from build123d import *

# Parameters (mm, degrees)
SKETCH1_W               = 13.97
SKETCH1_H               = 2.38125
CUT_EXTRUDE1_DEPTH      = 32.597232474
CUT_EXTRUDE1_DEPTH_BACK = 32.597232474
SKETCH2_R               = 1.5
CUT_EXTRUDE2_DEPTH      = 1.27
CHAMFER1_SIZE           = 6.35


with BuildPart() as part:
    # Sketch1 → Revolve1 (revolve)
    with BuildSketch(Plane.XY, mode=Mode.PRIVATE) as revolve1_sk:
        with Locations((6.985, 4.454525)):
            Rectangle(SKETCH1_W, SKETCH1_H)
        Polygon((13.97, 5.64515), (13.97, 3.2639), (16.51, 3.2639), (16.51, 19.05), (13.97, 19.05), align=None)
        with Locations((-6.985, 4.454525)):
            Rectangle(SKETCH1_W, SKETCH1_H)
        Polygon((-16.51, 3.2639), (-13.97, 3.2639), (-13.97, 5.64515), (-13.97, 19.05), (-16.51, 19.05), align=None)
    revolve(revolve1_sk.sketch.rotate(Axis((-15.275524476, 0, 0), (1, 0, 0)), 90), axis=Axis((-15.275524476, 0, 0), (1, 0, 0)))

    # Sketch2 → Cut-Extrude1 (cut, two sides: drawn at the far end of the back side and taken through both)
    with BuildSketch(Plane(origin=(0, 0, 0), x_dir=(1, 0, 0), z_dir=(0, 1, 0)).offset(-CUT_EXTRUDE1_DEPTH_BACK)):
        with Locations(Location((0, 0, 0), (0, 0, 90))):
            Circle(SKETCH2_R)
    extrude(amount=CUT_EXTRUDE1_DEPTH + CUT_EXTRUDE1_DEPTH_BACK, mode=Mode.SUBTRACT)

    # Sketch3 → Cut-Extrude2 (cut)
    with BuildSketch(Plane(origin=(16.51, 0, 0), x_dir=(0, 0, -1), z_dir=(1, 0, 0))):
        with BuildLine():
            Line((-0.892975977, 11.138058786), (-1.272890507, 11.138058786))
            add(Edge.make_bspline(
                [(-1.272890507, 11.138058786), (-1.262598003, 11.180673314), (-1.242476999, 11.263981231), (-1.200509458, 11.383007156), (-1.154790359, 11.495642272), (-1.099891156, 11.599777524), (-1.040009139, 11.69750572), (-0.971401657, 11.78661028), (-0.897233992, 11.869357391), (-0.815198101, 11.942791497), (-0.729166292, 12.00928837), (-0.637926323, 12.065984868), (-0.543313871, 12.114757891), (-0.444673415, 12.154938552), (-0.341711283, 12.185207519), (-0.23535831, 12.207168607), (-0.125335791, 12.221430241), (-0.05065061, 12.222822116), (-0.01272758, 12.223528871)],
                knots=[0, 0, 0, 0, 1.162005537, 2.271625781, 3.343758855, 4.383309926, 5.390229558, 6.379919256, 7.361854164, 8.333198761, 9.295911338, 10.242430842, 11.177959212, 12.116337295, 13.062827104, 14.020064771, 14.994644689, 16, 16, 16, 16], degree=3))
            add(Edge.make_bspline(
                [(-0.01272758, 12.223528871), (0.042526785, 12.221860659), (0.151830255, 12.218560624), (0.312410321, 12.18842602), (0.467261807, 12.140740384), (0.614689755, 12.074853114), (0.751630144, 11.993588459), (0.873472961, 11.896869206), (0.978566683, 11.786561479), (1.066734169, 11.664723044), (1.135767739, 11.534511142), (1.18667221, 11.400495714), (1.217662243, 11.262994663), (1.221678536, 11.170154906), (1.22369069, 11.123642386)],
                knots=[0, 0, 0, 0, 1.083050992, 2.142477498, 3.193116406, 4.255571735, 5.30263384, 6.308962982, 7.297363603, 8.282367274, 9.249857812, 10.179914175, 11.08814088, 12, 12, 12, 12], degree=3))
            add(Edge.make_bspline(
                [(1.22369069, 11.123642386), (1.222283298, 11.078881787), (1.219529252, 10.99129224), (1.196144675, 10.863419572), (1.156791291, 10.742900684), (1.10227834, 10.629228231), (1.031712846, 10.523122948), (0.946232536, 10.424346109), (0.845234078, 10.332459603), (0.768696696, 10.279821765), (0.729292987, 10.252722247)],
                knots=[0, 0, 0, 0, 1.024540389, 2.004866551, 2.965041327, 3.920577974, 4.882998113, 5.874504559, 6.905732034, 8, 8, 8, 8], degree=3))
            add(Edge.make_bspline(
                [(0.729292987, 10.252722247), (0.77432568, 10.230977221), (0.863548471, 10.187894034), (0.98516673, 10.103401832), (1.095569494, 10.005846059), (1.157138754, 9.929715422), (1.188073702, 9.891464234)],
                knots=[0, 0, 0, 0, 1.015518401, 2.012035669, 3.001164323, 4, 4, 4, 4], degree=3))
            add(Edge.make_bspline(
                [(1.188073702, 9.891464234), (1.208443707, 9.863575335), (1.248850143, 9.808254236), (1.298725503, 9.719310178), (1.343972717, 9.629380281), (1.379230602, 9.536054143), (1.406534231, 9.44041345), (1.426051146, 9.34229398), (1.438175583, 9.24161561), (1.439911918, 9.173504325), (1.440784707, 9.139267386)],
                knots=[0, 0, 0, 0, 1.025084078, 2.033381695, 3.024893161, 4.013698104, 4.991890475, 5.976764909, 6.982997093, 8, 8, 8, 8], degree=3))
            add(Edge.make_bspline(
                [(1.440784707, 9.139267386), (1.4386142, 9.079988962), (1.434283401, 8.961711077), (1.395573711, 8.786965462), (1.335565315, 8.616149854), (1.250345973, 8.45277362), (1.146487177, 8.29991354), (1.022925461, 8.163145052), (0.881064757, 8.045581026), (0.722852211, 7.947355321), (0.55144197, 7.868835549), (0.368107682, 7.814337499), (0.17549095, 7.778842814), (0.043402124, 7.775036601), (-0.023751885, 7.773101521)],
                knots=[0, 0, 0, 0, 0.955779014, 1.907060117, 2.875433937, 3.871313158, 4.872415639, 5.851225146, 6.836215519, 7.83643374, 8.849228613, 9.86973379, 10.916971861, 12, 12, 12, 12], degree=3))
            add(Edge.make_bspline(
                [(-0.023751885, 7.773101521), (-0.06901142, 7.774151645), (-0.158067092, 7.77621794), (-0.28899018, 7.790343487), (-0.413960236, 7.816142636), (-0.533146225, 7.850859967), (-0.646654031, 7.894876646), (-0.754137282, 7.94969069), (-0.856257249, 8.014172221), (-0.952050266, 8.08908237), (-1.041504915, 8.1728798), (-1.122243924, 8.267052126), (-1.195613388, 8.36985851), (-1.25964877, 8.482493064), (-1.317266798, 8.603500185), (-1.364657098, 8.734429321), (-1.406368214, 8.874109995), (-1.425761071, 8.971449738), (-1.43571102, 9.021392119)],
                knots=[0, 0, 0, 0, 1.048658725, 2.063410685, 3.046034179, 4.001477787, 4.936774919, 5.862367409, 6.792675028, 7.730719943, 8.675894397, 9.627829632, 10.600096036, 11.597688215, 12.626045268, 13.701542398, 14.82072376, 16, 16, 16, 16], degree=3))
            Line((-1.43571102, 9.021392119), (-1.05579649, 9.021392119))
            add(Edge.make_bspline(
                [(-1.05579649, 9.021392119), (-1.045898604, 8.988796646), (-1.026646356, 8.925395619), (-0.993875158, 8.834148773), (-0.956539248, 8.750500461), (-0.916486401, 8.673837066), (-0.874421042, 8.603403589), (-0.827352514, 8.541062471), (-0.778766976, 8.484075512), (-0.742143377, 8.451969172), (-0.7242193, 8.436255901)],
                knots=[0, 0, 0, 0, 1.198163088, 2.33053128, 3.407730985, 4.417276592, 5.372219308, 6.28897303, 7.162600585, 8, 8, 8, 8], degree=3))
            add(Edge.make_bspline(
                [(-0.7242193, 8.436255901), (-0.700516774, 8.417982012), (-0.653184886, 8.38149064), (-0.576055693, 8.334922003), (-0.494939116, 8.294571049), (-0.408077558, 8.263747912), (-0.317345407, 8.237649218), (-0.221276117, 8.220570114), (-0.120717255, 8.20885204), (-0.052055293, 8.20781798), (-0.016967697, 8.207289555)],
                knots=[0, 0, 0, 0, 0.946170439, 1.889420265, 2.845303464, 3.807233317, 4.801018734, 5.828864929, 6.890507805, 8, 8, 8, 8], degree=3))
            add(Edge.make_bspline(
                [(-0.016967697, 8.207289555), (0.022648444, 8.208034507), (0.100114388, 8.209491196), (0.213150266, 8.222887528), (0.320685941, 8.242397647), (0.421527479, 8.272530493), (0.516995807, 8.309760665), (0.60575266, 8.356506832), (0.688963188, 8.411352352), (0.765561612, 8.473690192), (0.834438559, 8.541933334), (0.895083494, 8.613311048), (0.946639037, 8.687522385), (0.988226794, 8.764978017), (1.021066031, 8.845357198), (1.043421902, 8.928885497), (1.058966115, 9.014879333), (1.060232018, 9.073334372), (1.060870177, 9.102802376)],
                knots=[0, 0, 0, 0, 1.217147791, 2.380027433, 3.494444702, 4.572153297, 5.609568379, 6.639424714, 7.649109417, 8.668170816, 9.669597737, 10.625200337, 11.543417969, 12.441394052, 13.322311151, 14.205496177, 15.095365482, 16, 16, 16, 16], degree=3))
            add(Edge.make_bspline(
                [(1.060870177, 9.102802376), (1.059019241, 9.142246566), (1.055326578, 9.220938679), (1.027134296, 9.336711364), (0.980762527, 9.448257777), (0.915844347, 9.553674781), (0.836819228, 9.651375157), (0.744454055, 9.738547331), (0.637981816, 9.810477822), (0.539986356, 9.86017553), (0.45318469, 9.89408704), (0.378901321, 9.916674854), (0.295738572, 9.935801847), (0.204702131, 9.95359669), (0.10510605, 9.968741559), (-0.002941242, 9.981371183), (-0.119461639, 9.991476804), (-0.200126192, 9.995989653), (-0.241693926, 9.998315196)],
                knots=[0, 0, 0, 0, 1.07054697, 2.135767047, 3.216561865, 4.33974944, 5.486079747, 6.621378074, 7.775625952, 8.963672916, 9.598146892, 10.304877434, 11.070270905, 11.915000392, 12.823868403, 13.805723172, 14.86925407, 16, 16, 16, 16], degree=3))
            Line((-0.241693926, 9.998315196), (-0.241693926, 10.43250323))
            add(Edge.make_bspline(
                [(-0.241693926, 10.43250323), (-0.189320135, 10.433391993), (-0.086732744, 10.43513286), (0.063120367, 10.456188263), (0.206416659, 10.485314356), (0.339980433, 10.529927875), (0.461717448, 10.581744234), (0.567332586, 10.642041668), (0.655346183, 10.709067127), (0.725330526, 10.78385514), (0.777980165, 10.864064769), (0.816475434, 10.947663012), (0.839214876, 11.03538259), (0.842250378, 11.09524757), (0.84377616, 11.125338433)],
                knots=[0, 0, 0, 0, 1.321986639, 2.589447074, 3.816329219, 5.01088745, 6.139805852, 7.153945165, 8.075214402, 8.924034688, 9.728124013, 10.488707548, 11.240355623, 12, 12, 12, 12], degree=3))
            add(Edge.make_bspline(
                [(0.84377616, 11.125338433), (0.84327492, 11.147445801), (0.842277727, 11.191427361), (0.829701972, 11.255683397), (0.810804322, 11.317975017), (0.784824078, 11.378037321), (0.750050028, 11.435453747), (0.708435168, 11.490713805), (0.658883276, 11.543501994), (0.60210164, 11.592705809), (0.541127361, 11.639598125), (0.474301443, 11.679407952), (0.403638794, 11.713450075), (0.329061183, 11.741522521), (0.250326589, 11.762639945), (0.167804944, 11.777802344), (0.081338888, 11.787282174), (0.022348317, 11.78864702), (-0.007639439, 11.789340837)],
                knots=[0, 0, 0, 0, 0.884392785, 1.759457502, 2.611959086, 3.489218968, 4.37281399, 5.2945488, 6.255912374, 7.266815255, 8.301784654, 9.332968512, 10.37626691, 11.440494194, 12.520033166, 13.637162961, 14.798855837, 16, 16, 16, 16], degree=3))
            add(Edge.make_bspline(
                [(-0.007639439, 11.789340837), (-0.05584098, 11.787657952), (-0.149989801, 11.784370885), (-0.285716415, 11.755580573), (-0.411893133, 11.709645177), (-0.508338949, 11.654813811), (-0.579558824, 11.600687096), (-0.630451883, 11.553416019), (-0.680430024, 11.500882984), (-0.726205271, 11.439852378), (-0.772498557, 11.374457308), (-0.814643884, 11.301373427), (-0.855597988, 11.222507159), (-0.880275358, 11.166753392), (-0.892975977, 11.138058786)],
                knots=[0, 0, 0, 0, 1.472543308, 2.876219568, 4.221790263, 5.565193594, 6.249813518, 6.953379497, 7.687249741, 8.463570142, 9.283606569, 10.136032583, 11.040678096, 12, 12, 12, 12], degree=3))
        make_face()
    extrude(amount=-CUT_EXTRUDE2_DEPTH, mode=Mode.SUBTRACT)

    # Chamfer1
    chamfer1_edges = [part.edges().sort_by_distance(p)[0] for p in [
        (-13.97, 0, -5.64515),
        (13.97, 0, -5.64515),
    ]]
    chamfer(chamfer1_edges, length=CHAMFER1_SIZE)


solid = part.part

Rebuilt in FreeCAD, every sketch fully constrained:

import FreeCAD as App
import Part
import Sketcher
Q = App.Units.Quantity


def edges_at(feature, points):
    """Names of the edges that pass closest to the given points."""
    edges = feature.Shape.Edges
    near = lambda p: min(range(len(edges)), key=lambda i: edges[i].distToShape(Part.Vertex(*p))[0])
    return sorted({f"Edge{near(p) + 1}" for p in points})


def add_polygon(sketch, points):
    """Adds a closed chain of lines whose ends are joined by coincident constraints."""
    first, n = sketch.GeometryCount, len(points)
    for a, b in zip(points, points[1:] + points[:1]):
        sketch.addGeometry(Part.LineSegment(App.Vector(*a, 0), App.Vector(*b, 0)), False)
    for i in range(n):
        sketch.addConstraint(Sketcher.Constraint("Coincident", first + i, 2, first + (i + 1) % n, 1))

doc = App.newDocument("Part")
body = doc.addObject("PartDesign::Body", "Body")

# Sketch on XY plane
sketch1 = body.newObject("Sketcher::SketchObject", "Sketch")
sketch1.AttachmentSupport = (doc.getObject("XY_Plane"), [""])
sketch1.MapMode = "FlatFace"
add_polygon(sketch1, [(16.5, 3.3), (16.5, 19.1), (14, 19.1), (14, 5.6), (-14, 5.6), (-14, 19.1), (-16.5, 19.1), (-16.5, 3.3)])  # lines 0-7
sketch1.addConstraint([
    Sketcher.Constraint("Vertical", 0),
    Sketcher.Constraint("Horizontal", 1),
    Sketcher.Constraint("Vertical", 2),
    Sketcher.Constraint("Horizontal", 3),
    Sketcher.Constraint("Vertical", 4),
    Sketcher.Constraint("Horizontal", 5),
    Sketcher.Constraint("Vertical", 6),
    Sketcher.Constraint("Horizontal", 7),
    Sketcher.Constraint("Symmetric", 1, 2, 4, 2, -2),
    Sketcher.Constraint("Equal", 1, 5),
    Sketcher.Constraint("DistanceX", 1, 2, 1, 1, Q("0.1 in")),
    Sketcher.Constraint("DistanceX", 3, 2, 3, 1, Q("1.1 in")),
    Sketcher.Constraint("DistanceY", -1, 1, 0, 2, Q("0.75 in")),
    Sketcher.Constraint("DistanceY", 0, 1, 0, 2, Q("0.6215 in")),
    Sketcher.Constraint("DistanceY", 6, 2, 3, 2, Q("0.09375 in")),
])
revolution = body.newObject("PartDesign::Revolution", "Revolution")
revolution.Profile = sketch1
revolution.ReferenceAxis = (sketch1, ["H_Axis"])
revolution.Angle = 360

# Sketch on XZ plane
sketch2 = body.newObject("Sketcher::SketchObject", "Sketch001")
sketch2.AttachmentSupport = (doc.getObject("XZ_Plane"), [""])
sketch2.MapMode = "FlatFace"
sketch2.addGeometry(Part.Circle(App.Vector(0, 0, 0), App.Vector(0, 0, 1), 1.5), False)
sketch2.addConstraint([
    Sketcher.Constraint("Coincident", 0, 3, -1, 1),
    Sketcher.Constraint("Diameter", 0, 3.0),
])
pocket1 = body.newObject("PartDesign::Pocket", "Pocket")
pocket1.Profile = sketch2
pocket1.Type = "ThroughAll"
pocket1.Midplane = True

# Sketch on YZ plane
sketch3 = body.newObject("Sketcher::SketchObject", "Sketch002")
sketch3.AttachmentSupport = (doc.getObject("YZ_Plane"), [""])
sketch3.MapMode = "FlatFace"
sketch3.AttachmentOffset = App.Placement(App.Vector(0, 0, 0.65 * 25.4), App.Rotation())
sketch3.addGeometry([
    Part.LineSegment(App.Vector(11.138059, 1.272891, 0), App.Vector(11.138059, 0.892976, 0)),  # 0
    Part.BSplineCurve([App.Vector(11.789341, 0.007639, 0), App.Vector(11.787658, 0.055841, 0), App.Vector(11.784371, 0.14999, 0), App.Vector(11.755581, 0.285716, 0), App.Vector(11.709645, 0.411893, 0), App.Vector(11.654814, 0.508339, 0), App.Vector(11.600687, 0.579559, 0), App.Vector(11.553416, 0.630452, 0), App.Vector(11.500883, 0.68043, 0), App.Vector(11.439852, 0.726205, 0), App.Vector(11.374457, 0.772499, 0), App.Vector(11.301373, 0.814644, 0), App.Vector(11.222507, 0.855598, 0), App.Vector(11.166753, 0.880275, 0), App.Vector(11.138059, 0.892976, 0)], [4, 1, 1, 1, 1, 1, 1, 1, 1, 1, 1, 1, 4], [0, 1.472543308, 2.876219568, 4.221790263, 5.565193594, 6.249813518, 6.953379497, 7.687249741, 8.463570142, 9.283606569, 10.136032583, 11.040678096, 12], False, 3, [1, 1, 1, 1, 1, 1, 1, 1, 1, 1, 1, 1, 1, 1, 1], False),  # 1
    Part.BSplineCurve([App.Vector(11.125338, -0.843776, 0), App.Vector(11.147446, -0.843275, 0), App.Vector(11.191427, -0.842278, 0), App.Vector(11.255683, -0.829702, 0), App.Vector(11.317975, -0.810804, 0), App.Vector(11.378037, -0.784824, 0), App.Vector(11.435454, -0.75005, 0), App.Vector(11.490714, -0.708435, 0), App.Vector(11.543502, -0.658883, 0), App.Vector(11.592706, -0.602102, 0), App.Vector(11.639598, -0.541127, 0), App.Vector(11.679408, -0.474301, 0), App.Vector(11.71345, -0.403639, 0), App.Vector(11.741523, -0.329061, 0), App.Vector(11.76264, -0.250327, 0), App.Vector(11.777802, -0.167805, 0), App.Vector(11.787282, -0.081339, 0), App.Vector(11.788647, -0.022348, 0), App.Vector(11.789341, 0.007639, 0)], [4, 1, 1, 1, 1, 1, 1, 1, 1, 1, 1, 1, 1, 1, 1, 1, 4], [0, 0.884392785, 1.759457502, 2.611959086, 3.489218968, 4.37281399, 5.2945488, 6.255912374, 7.266815255, 8.301784654, 9.332968512, 10.37626691, 11.440494194, 12.520033166, 13.637162961, 14.798855837, 16], False, 3, [1, 1, 1, 1, 1, 1, 1, 1, 1, 1, 1, 1, 1, 1, 1, 1, 1, 1, 1], False),  # 2
    Part.BSplineCurve([App.Vector(10.432503, 0.241694, 0), App.Vector(10.433392, 0.18932, 0), App.Vector(10.435133, 0.086733, 0), App.Vector(10.456188, -0.06312, 0), App.Vector(10.485314, -0.206417, 0), App.Vector(10.529928, -0.33998, 0), App.Vector(10.581744, -0.461717, 0), App.Vector(10.642042, -0.567333, 0), App.Vector(10.709067, -0.655346, 0), App.Vector(10.783855, -0.725331, 0), App.Vector(10.864065, -0.77798, 0), App.Vector(10.947663, -0.816475, 0), App.Vector(11.035383, -0.839215, 0), App.Vector(11.095248, -0.84225, 0), App.Vector(11.125338, -0.843776, 0)], [4, 1, 1, 1, 1, 1, 1, 1, 1, 1, 1, 1, 4], [0, 1.321986639, 2.589447074, 3.816329219, 5.01088745, 6.139805852, 7.153945165, 8.075214402, 8.924034688, 9.728124013, 10.488707548, 11.240355623, 12], False, 3, [1, 1, 1, 1, 1, 1, 1, 1, 1, 1, 1, 1, 1, 1, 1], False),  # 3
    Part.LineSegment(App.Vector(10.432503, 0.241694, 0), App.Vector(9.998315, 0.241694, 0)),  # 4
    Part.BSplineCurve([App.Vector(9.102802, -1.06087, 0), App.Vector(9.142247, -1.059019, 0), App.Vector(9.220939, -1.055327, 0), App.Vector(9.336711, -1.027134, 0), App.Vector(9.448258, -0.980763, 0), App.Vector(9.553675, -0.915844, 0), App.Vector(9.651375, -0.836819, 0), App.Vector(9.738547, -0.744454, 0), App.Vector(9.810478, -0.637982, 0), App.Vector(9.860176, -0.539986, 0), App.Vector(9.894087, -0.453185, 0), App.Vector(9.916675, -0.378901, 0), App.Vector(9.935802, -0.295739, 0), App.Vector(9.953597, -0.204702, 0), App.Vector(9.968742, -0.105106, 0), App.Vector(9.981371, 0.002941, 0), App.Vector(9.991477, 0.119462, 0), App.Vector(9.99599, 0.200126, 0), App.Vector(9.998315, 0.241694, 0)], [4, 1, 1, 1, 1, 1, 1, 1, 1, 1, 1, 1, 1, 1, 1, 1, 4], [0, 1.07054697, 2.135767047, 3.216561865, 4.33974944, 5.486079747, 6.621378074, 7.775625952, 8.963672916, 9.598146892, 10.304877434, 11.070270905, 11.915000392, 12.823868403, 13.805723172, 14.86925407, 16], False, 3, [1, 1, 1, 1, 1, 1, 1, 1, 1, 1, 1, 1, 1, 1, 1, 1, 1, 1, 1], False),  # 5
    Part.BSplineCurve([App.Vector(8.20729, 0.016968, 0), App.Vector(8.208035, -0.022648, 0), App.Vector(8.209491, -0.100114, 0), App.Vector(8.222888, -0.21315, 0), App.Vector(8.242398, -0.320686, 0), App.Vector(8.27253, -0.421527, 0), App.Vector(8.309761, -0.516996, 0), App.Vector(8.356507, -0.605753, 0), App.Vector(8.411352, -0.688963, 0), App.Vector(8.47369, -0.765562, 0), App.Vector(8.541933, -0.834439, 0), App.Vector(8.613311, -0.895083, 0), App.Vector(8.687522, -0.946639, 0), App.Vector(8.764978, -0.988227, 0), App.Vector(8.845357, -1.021066, 0), App.Vector(8.928885, -1.043422, 0), App.Vector(9.014879, -1.058966, 0), App.Vector(9.073334, -1.060232, 0), App.Vector(9.102802, -1.06087, 0)], [4, 1, 1, 1, 1, 1, 1, 1, 1, 1, 1, 1, 1, 1, 1, 1, 4], [0, 1.217147791, 2.380027433, 3.494444702, 4.572153297, 5.609568379, 6.639424714, 7.649109417, 8.668170816, 9.669597737, 10.625200337, 11.543417969, 12.441394052, 13.322311151, 14.205496177, 15.095365482, 16], False, 3, [1, 1, 1, 1, 1, 1, 1, 1, 1, 1, 1, 1, 1, 1, 1, 1, 1, 1, 1], False),  # 6
    Part.BSplineCurve([App.Vector(8.436256, 0.724219, 0), App.Vector(8.417982, 0.700517, 0), App.Vector(8.381491, 0.653185, 0), App.Vector(8.334922, 0.576056, 0), App.Vector(8.294571, 0.494939, 0), App.Vector(8.263748, 0.408078, 0), App.Vector(8.237649, 0.317345, 0), App.Vector(8.22057, 0.221276, 0), App.Vector(8.208852, 0.120717, 0), App.Vector(8.207818, 0.052055, 0), App.Vector(8.20729, 0.016968, 0)], [4, 1, 1, 1, 1, 1, 1, 1, 4], [0, 0.946170439, 1.889420265, 2.845303464, 3.807233317, 4.801018734, 5.828864929, 6.890507805, 8], False, 3, [1, 1, 1, 1, 1, 1, 1, 1, 1, 1, 1], False),  # 7
    Part.BSplineCurve([App.Vector(9.021392, 1.055796, 0), App.Vector(8.988797, 1.045899, 0), App.Vector(8.925396, 1.026646, 0), App.Vector(8.834149, 0.993875, 0), App.Vector(8.7505, 0.956539, 0), App.Vector(8.673837, 0.916486, 0), App.Vector(8.603404, 0.874421, 0), App.Vector(8.541062, 0.827353, 0), App.Vector(8.484076, 0.778767, 0), App.Vector(8.451969, 0.742143, 0), App.Vector(8.436256, 0.724219, 0)], [4, 1, 1, 1, 1, 1, 1, 1, 4], [0, 1.198163088, 2.33053128, 3.407730985, 4.417276592, 5.372219308, 6.28897303, 7.162600585, 8], False, 3, [1, 1, 1, 1, 1, 1, 1, 1, 1, 1, 1], False),  # 8
    Part.LineSegment(App.Vector(9.021392, 1.055796, 0), App.Vector(9.021392, 1.435711, 0)),  # 9
    Part.BSplineCurve([App.Vector(7.773102, 0.023752, 0), App.Vector(7.774152, 0.069011, 0), App.Vector(7.776218, 0.158067, 0), App.Vector(7.790343, 0.28899, 0), App.Vector(7.816143, 0.41396, 0), App.Vector(7.85086, 0.533146, 0), App.Vector(7.894877, 0.646654, 0), App.Vector(7.949691, 0.754137, 0), App.Vector(8.014172, 0.856257, 0), App.Vector(8.089082, 0.95205, 0), App.Vector(8.17288, 1.041505, 0), App.Vector(8.267052, 1.122244, 0), App.Vector(8.369859, 1.195613, 0), App.Vector(8.482493, 1.259649, 0), App.Vector(8.6035, 1.317267, 0), App.Vector(8.734429, 1.364657, 0), App.Vector(8.87411, 1.406368, 0), App.Vector(8.97145, 1.425761, 0), App.Vector(9.021392, 1.435711, 0)], [4, 1, 1, 1, 1, 1, 1, 1, 1, 1, 1, 1, 1, 1, 1, 1, 4], [0, 1.048658725, 2.063410685, 3.046034179, 4.001477787, 4.936774919, 5.862367409, 6.792675028, 7.730719943, 8.675894397, 9.627829632, 10.600096036, 11.597688215, 12.626045268, 13.701542398, 14.82072376, 16], False, 3, [1, 1, 1, 1, 1, 1, 1, 1, 1, 1, 1, 1, 1, 1, 1, 1, 1, 1, 1], False),  # 10
    Part.BSplineCurve([App.Vector(9.139267, -1.440785, 0), App.Vector(9.079989, -1.438614, 0), App.Vector(8.961711, -1.434283, 0), App.Vector(8.786965, -1.395574, 0), App.Vector(8.61615, -1.335565, 0), App.Vector(8.452774, -1.250346, 0), App.Vector(8.299914, -1.146487, 0), App.Vector(8.163145, -1.022925, 0), App.Vector(8.045581, -0.881065, 0), App.Vector(7.947355, -0.722852, 0), App.Vector(7.868836, -0.551442, 0), App.Vector(7.814337, -0.368108, 0), App.Vector(7.778843, -0.175491, 0), App.Vector(7.775037, -0.043402, 0), App.Vector(7.773102, 0.023752, 0)], [4, 1, 1, 1, 1, 1, 1, 1, 1, 1, 1, 1, 4], [0, 0.955779014, 1.907060117, 2.875433937, 3.871313158, 4.872415639, 5.851225146, 6.836215519, 7.83643374, 8.849228613, 9.86973379, 10.916971861, 12], False, 3, [1, 1, 1, 1, 1, 1, 1, 1, 1, 1, 1, 1, 1, 1, 1], False),  # 11
    Part.BSplineCurve([App.Vector(9.891464, -1.188074, 0), App.Vector(9.863575, -1.208444, 0), App.Vector(9.808254, -1.24885, 0), App.Vector(9.71931, -1.298726, 0), App.Vector(9.62938, -1.343973, 0), App.Vector(9.536054, -1.379231, 0), App.Vector(9.440413, -1.406534, 0), App.Vector(9.342294, -1.426051, 0), App.Vector(9.241616, -1.438176, 0), App.Vector(9.173504, -1.439912, 0), App.Vector(9.139267, -1.440785, 0)], [4, 1, 1, 1, 1, 1, 1, 1, 4], [0, 1.025084078, 2.033381695, 3.024893161, 4.013698104, 4.991890475, 5.976764909, 6.982997093, 8], False, 3, [1, 1, 1, 1, 1, 1, 1, 1, 1, 1, 1], False),  # 12
    Part.BSplineCurve([App.Vector(10.252722, -0.729293, 0), App.Vector(10.230977, -0.774326, 0), App.Vector(10.187894, -0.863548, 0), App.Vector(10.103402, -0.985167, 0), App.Vector(10.005846, -1.095569, 0), App.Vector(9.929715, -1.157139, 0), App.Vector(9.891464, -1.188074, 0)], [4, 1, 1, 1, 4], [0, 1.015518401, 2.012035669, 3.001164323, 4], False, 3, [1, 1, 1, 1, 1, 1, 1], False),  # 13
    Part.BSplineCurve([App.Vector(11.123642, -1.223691, 0), App.Vector(11.078882, -1.222283, 0), App.Vector(10.991292, -1.219529, 0), App.Vector(10.86342, -1.196145, 0), App.Vector(10.742901, -1.156791, 0), App.Vector(10.629228, -1.102278, 0), App.Vector(10.523123, -1.031713, 0), App.Vector(10.424346, -0.946233, 0), App.Vector(10.33246, -0.845234, 0), App.Vector(10.279822, -0.768697, 0), App.Vector(10.252722, -0.729293, 0)], [4, 1, 1, 1, 1, 1, 1, 1, 4], [0, 1.024540389, 2.004866551, 2.965041327, 3.920577974, 4.882998113, 5.874504559, 6.905732034, 8], False, 3, [1, 1, 1, 1, 1, 1, 1, 1, 1, 1, 1], False),  # 14
    Part.BSplineCurve([App.Vector(12.223529, 0.012728, 0), App.Vector(12.221861, -0.042527, 0), App.Vector(12.218561, -0.15183, 0), App.Vector(12.188426, -0.31241, 0), App.Vector(12.14074, -0.467262, 0), App.Vector(12.074853, -0.61469, 0), App.Vector(11.993588, -0.75163, 0), App.Vector(11.896869, -0.873473, 0), App.Vector(11.786561, -0.978567, 0), App.Vector(11.664723, -1.066734, 0), App.Vector(11.534511, -1.135768, 0), App.Vector(11.400496, -1.186672, 0), App.Vector(11.262995, -1.217662, 0), App.Vector(11.170155, -1.221679, 0), App.Vector(11.123642, -1.223691, 0)], [4, 1, 1, 1, 1, 1, 1, 1, 1, 1, 1, 1, 4], [0, 1.083050992, 2.142477498, 3.193116406, 4.255571735, 5.30263384, 6.308962982, 7.297363603, 8.282367274, 9.249857812, 10.179914175, 11.08814088, 12], False, 3, [1, 1, 1, 1, 1, 1, 1, 1, 1, 1, 1, 1, 1, 1, 1], False),  # 15
    Part.BSplineCurve([App.Vector(11.138059, 1.272891, 0), App.Vector(11.180673, 1.262598, 0), App.Vector(11.263981, 1.242477, 0), App.Vector(11.383007, 1.200509, 0), App.Vector(11.495642, 1.15479, 0), App.Vector(11.599778, 1.099891, 0), App.Vector(11.697506, 1.040009, 0), App.Vector(11.78661, 0.971402, 0), App.Vector(11.869357, 0.897234, 0), App.Vector(11.942791, 0.815198, 0), App.Vector(12.009288, 0.729166, 0), App.Vector(12.065985, 0.637926, 0), App.Vector(12.114758, 0.543314, 0), App.Vector(12.154939, 0.444673, 0), App.Vector(12.185208, 0.341711, 0), App.Vector(12.207169, 0.235358, 0), App.Vector(12.22143, 0.125336, 0), App.Vector(12.222822, 0.050651, 0), App.Vector(12.223529, 0.012728, 0)], [4, 1, 1, 1, 1, 1, 1, 1, 1, 1, 1, 1, 1, 1, 1, 1, 4], [0, 1.162005537, 2.271625781, 3.343758855, 4.383309926, 5.390229558, 6.379919256, 7.361854164, 8.333198761, 9.295911338, 10.242430842, 11.177959212, 12.116337295, 13.062827104, 14.020064771, 14.994644689, 16], False, 3, [1, 1, 1, 1, 1, 1, 1, 1, 1, 1, 1, 1, 1, 1, 1, 1, 1, 1, 1], False),  # 16
], False)
sketch3.addConstraint([
    Sketcher.Constraint("Block", 1),
    Sketcher.Constraint("Block", 2),
    Sketcher.Constraint("Block", 3),
    Sketcher.Constraint("Block", 5),
    Sketcher.Constraint("Block", 6),
    Sketcher.Constraint("Block", 7),
    Sketcher.Constraint("Block", 8),
    Sketcher.Constraint("Block", 10),
    Sketcher.Constraint("Block", 11),
    Sketcher.Constraint("Block", 12),
    Sketcher.Constraint("Block", 13),
    Sketcher.Constraint("Block", 14),
    Sketcher.Constraint("Block", 15),
    Sketcher.Constraint("Block", 16),
    Sketcher.Constraint("Coincident", 0, 2, 1, 2),
    Sketcher.Constraint("Coincident", 3, 1, 4, 1),
    Sketcher.Constraint("Coincident", 4, 2, 5, 2),
    Sketcher.Constraint("Coincident", 8, 1, 9, 1),
    Sketcher.Constraint("Coincident", 9, 2, 10, 2),
    Sketcher.Constraint("Coincident", 16, 1, 0, 1),
])
pocket2 = body.newObject("PartDesign::Pocket", "Pocket001")
pocket2.Profile = sketch3
pocket2.Length = Q("0.05 in")
doc.recompute()

chamfer = body.newObject("PartDesign::Chamfer", "Chamfer")
chamfer.Base = (pocket2, edges_at(pocket2, [(-13.97, 0, -5.645), (13.97, 0, -5.645)]))
chamfer.Size = Q("0.25 in")

doc.recompute()
